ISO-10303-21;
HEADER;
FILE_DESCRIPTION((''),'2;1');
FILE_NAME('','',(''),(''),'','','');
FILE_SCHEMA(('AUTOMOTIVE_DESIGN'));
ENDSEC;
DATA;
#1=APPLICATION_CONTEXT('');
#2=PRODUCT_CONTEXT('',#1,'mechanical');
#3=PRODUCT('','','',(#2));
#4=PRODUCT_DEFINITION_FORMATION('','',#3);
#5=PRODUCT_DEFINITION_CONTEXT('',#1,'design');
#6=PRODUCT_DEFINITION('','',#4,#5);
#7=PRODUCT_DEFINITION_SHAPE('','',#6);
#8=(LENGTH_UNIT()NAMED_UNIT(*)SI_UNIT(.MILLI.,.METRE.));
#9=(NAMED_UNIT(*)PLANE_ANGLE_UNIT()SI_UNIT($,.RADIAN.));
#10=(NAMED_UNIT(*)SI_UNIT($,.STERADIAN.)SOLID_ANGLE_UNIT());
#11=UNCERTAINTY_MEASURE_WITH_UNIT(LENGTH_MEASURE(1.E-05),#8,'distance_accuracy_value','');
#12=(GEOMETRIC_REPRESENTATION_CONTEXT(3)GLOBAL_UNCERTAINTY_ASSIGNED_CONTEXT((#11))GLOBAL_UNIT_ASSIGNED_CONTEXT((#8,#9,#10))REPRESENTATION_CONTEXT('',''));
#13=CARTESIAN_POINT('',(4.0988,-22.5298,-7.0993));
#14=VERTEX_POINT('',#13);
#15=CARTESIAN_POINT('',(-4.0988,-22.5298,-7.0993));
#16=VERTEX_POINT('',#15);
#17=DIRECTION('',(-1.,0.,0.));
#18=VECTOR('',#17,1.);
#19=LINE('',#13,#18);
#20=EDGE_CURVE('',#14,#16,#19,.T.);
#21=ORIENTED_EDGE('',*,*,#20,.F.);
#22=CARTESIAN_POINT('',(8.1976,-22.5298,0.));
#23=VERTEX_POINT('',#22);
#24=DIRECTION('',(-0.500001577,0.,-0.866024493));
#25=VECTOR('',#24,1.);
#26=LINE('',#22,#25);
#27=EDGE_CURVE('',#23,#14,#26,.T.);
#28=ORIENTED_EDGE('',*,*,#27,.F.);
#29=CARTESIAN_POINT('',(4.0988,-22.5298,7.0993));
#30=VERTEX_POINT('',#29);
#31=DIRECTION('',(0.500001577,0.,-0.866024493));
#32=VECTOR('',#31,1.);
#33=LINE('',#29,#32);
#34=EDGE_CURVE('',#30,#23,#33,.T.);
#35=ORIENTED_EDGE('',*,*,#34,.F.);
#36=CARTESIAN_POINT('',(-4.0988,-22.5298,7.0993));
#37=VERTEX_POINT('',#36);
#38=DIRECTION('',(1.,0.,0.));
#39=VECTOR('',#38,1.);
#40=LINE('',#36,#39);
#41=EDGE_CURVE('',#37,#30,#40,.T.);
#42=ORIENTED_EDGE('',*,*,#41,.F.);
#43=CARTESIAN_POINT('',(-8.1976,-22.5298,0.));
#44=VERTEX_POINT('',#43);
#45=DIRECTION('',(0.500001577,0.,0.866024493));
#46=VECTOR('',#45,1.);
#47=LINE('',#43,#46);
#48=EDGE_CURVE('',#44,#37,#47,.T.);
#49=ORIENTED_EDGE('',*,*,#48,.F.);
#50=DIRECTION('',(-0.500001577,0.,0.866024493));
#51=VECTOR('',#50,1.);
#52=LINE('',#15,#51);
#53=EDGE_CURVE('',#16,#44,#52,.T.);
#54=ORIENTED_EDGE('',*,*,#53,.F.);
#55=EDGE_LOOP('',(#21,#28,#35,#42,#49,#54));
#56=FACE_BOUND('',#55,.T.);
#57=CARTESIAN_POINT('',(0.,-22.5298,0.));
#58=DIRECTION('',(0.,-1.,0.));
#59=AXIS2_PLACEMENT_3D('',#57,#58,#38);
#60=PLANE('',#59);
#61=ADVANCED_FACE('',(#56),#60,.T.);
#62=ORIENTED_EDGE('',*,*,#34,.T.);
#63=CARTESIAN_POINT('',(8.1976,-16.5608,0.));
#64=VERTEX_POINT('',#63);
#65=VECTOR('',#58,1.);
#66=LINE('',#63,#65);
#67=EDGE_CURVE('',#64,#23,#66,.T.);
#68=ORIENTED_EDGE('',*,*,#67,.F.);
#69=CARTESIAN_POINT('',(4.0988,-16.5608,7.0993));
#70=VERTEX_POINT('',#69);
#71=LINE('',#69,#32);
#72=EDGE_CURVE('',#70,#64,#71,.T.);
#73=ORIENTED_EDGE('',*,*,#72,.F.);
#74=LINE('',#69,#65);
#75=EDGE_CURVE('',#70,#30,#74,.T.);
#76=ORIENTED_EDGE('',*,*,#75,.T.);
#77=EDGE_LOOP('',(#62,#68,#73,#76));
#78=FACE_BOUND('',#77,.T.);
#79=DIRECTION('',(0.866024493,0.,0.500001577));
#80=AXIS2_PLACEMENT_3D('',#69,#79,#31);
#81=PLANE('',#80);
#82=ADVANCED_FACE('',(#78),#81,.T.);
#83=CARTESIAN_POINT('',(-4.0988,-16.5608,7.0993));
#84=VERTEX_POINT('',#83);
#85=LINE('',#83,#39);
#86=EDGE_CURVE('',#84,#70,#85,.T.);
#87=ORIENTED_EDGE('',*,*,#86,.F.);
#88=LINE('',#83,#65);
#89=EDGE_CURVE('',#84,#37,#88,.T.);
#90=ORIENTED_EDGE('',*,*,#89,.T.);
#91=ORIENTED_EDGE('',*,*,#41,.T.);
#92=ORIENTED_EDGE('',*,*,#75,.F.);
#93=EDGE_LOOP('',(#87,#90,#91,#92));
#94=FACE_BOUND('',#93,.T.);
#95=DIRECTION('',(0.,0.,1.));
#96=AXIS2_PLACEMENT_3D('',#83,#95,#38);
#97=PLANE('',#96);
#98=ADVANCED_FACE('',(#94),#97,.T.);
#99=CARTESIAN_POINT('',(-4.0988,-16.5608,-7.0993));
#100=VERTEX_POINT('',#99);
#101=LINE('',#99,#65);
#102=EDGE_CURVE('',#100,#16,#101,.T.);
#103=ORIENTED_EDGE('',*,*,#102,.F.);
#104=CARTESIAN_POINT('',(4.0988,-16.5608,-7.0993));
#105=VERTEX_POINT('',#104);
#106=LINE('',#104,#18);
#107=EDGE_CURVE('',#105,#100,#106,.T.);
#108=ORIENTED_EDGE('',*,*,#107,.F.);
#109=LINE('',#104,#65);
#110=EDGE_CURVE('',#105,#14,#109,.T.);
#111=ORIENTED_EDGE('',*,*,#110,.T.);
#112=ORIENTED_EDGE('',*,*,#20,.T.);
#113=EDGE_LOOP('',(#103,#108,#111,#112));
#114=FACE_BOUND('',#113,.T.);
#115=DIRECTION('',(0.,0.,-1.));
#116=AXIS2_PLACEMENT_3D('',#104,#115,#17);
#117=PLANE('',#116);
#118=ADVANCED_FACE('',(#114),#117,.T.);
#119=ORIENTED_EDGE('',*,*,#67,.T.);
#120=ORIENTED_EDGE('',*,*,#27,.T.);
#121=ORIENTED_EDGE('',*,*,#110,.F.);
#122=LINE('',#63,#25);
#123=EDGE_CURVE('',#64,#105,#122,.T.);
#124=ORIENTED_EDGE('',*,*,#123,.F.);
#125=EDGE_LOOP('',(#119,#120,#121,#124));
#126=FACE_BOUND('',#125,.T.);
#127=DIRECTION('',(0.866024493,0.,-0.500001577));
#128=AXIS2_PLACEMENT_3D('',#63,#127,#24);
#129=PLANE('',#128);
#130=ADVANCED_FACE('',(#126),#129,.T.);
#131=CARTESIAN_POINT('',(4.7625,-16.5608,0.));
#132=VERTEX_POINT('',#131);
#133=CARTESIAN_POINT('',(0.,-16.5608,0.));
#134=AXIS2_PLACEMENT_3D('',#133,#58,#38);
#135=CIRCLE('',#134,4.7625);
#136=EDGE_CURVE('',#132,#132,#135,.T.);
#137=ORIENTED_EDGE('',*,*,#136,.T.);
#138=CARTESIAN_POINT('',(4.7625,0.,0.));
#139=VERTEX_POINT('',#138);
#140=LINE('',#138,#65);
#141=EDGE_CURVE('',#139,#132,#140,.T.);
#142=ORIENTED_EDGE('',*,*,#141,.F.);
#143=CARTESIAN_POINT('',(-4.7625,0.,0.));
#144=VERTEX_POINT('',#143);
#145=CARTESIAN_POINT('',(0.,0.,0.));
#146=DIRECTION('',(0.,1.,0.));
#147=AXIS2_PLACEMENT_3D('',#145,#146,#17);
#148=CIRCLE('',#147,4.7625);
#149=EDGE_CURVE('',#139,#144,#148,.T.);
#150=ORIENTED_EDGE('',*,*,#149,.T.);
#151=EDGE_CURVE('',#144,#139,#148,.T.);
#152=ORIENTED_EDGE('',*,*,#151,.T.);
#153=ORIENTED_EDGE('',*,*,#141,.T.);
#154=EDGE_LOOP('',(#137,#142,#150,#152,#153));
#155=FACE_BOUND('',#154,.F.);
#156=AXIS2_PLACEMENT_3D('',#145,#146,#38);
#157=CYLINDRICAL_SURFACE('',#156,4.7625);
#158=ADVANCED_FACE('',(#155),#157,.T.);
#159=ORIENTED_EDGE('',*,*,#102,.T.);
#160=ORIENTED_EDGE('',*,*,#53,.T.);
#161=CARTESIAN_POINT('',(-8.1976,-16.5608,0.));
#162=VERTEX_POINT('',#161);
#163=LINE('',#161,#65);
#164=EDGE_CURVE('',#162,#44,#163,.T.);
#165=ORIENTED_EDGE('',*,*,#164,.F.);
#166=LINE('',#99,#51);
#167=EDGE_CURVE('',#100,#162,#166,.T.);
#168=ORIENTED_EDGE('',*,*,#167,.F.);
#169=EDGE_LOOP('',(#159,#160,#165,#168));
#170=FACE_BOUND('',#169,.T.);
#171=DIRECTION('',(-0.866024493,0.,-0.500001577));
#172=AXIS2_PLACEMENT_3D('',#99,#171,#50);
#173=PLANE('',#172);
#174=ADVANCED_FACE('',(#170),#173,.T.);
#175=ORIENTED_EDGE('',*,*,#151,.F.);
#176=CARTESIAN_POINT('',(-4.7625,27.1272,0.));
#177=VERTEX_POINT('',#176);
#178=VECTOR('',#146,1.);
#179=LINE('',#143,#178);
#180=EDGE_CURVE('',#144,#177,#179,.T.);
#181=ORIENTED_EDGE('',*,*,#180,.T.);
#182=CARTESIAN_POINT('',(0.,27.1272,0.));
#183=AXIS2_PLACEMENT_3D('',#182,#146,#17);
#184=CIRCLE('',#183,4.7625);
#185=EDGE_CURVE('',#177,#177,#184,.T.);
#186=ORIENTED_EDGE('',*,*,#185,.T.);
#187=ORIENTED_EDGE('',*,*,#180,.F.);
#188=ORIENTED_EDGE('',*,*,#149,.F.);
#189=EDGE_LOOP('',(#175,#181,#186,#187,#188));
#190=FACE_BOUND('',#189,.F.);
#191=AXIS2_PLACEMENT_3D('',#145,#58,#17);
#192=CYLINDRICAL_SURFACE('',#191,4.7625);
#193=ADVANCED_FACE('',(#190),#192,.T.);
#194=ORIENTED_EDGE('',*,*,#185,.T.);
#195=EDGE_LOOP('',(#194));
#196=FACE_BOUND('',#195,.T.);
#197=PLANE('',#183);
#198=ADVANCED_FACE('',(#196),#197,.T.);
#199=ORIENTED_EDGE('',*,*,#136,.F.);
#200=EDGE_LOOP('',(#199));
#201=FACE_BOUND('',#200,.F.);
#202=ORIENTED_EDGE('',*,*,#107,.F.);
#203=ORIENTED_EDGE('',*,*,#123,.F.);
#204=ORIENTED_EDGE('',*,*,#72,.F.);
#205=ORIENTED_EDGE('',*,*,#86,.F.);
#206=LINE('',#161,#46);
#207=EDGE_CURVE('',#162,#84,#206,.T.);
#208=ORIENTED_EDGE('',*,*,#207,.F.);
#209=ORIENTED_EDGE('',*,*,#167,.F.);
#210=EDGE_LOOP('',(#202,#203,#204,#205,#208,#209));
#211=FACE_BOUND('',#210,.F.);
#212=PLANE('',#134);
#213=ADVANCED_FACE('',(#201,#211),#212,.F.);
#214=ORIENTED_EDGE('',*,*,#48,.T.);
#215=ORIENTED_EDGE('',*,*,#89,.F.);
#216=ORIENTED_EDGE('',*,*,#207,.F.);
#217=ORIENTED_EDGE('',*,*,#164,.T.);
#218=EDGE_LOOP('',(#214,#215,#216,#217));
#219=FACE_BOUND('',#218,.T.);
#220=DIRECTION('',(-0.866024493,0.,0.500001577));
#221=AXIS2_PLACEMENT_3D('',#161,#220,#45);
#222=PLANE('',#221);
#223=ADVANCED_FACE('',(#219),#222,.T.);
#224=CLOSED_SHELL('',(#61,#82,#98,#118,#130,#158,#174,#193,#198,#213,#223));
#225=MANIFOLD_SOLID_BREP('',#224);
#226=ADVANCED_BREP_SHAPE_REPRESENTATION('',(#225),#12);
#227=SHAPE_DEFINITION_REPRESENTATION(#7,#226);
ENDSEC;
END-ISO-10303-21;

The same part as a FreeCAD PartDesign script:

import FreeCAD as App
import Part
import Sketcher
from FreeCAD import Vector
Q = App.Units.Quantity

doc = App.newDocument("Part")
params = doc.addObject("Spreadsheet::Sheet", "Params")
for row, (alias, value) in enumerate([
    ("sketch1_diameter", "0.375 in"),
    ("pad1_length", "1.068 in"),
    ("sketch2_diameter", "0.375 in"),
    ("pad2_length", "0.652 in"),
    ("pad3_length", "0.235 in"),
], start=1):
    params.set(f"A{row}", alias)
    params.set(f"B{row}", "=" + value)
    params.setAlias(f"B{row}", alias)

body = doc.addObject("PartDesign::Body", "Body")

# Sketch on XZ plane
sketch1 = doc.addObject("Sketcher::SketchObject", "Sketch")
body.addObject(sketch1)
sketch1.AttachmentSupport = (doc.XZ_Plane, [""])
sketch1.MapMode = "FlatFace"
sketch1.addGeometry(Part.Circle(Vector(0, 0, 0), Vector(0, 0, 1), 4.7625), False)
sketch1.addConstraint(Sketcher.Constraint("Coincident", 0, 3, -1, 1))
sketch1.addConstraint(Sketcher.Constraint("Diameter", 0, Q("0.375 in")))
sketch1.setExpression("Constraints[1]", "Params.sketch1_diameter")
pad1 = doc.addObject("PartDesign::Pad", "Pad")
body.addObject(pad1)
pad1.Profile = sketch1
pad1.setExpression("Length", "Params.pad1_length")
pad1.Reversed = True

# Sketch on XZ plane
sketch2 = doc.addObject("Sketcher::SketchObject", "Sketch001")
body.addObject(sketch2)
sketch2.AttachmentSupport = (doc.XZ_Plane, [""])
sketch2.MapMode = "FlatFace"
sketch2.addGeometry(Part.Circle(Vector(0, 0, 0), Vector(0, 0, 1), 4.7625), False)
sketch2.addConstraint(Sketcher.Constraint("Coincident", 0, 3, -1, 1))
sketch2.addConstraint(Sketcher.Constraint("Diameter", 0, Q("0.375 in")))
sketch2.setExpression("Constraints[1]", "Params.sketch2_diameter")
pad2 = doc.addObject("PartDesign::Pad", "Pad001")
body.addObject(pad2)
pad2.Profile = sketch2
pad2.setExpression("Length", "Params.pad2_length")

# Sketch on XZ plane
sketch3 = doc.addObject("Sketcher::SketchObject", "Sketch002")
body.addObject(sketch3)
sketch3.AttachmentSupport = (doc.XZ_Plane, [""])
sketch3.MapMode = "FlatFace"
sketch3.AttachmentOffset = App.Placement(Vector(0, 0, 0.652 * 25.4), App.Rotation())
sketch3.addGeometry(Part.LineSegment(Vector(-8.1976, 0, 0), Vector(-4.0988, -7.0993, 0)), False)
sketch3.addGeometry(Part.LineSegment(Vector(-4.0988, -7.0993, 0), Vector(4.0988, -7.0993, 0)), False)
sketch3.addGeometry(Part.LineSegment(Vector(4.0988, -7.0993, 0), Vector(8.1976, 0, 0)), False)
sketch3.addGeometry(Part.LineSegment(Vector(8.1976, 0, 0), Vector(4.0988, 7.0993, 0)), False)
sketch3.addGeometry(Part.LineSegment(Vector(4.0988, 7.0993, 0), Vector(-4.0988, 7.0993, 0)), False)
sketch3.addGeometry(Part.LineSegment(Vector(-4.0988, 7.0993, 0), Vector(-8.1976, 0, 0)), False)
sketch3.addConstraint(Sketcher.Constraint("Coincident", 0, 2, 1, 1))
sketch3.addConstraint(Sketcher.Constraint("Coincident", 1, 2, 2, 1))
sketch3.addConstraint(Sketcher.Constraint("Coincident", 2, 2, 3, 1))
sketch3.addConstraint(Sketcher.Constraint("Coincident", 3, 2, 4, 1))
sketch3.addConstraint(Sketcher.Constraint("Coincident", 4, 2, 5, 1))
sketch3.addConstraint(Sketcher.Constraint("Coincident", 5, 2, 0, 1))
sketch3.addConstraint(Sketcher.Constraint("Horizontal", 1))
sketch3.addConstraint(Sketcher.Constraint("Horizontal", 4))
sketch3.addConstraint(Sketcher.Constraint("Symmetric", 0, 2, 3, 2, -1, 1))
sketch3.addConstraint(Sketcher.Constraint("Symmetric", 2, 2, 5, 2, -1, 1))
sketch3.addConstraint(Sketcher.Constraint("PointOnObject", 2, 2, -1))
sketch3.addConstraint(Sketcher.Constraint("Parallel", 2, 5))
sketch3.addConstraint(Sketcher.Constraint("Vertical", 1, 2, 3, 2))
sketch3.addConstraint(Sketcher.Constraint("Angle", 0, Q("-60 deg")))
sketch3.addConstraint(Sketcher.Constraint("DistanceY", 1, 2, 3, 2, Q("0.559 in")))
sketch3.addConstraint(Sketcher.Constraint("DistanceX", 1, 1, 1, 2, Q("8.1976 mm")))
pad3 = doc.addObject("PartDesign::Pad", "Pad002")
body.addObject(pad3)
pad3.Profile = sketch3
pad3.setExpression("Length", "Params.pad3_length")

doc.recompute()
